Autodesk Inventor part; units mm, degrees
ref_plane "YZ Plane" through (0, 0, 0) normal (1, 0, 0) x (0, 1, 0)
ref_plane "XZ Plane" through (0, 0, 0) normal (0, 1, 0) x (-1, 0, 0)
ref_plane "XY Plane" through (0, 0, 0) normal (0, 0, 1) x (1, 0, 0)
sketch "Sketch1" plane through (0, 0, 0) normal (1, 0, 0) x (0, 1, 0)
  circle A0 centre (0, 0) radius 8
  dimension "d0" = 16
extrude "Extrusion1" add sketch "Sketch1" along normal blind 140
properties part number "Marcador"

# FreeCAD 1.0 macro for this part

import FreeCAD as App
import Part
import Sketcher

V = App.Vector

doc = App.newDocument("Part")
body = doc.addObject("PartDesign::Body", "Body")

# Sketch on YZ plane
sketch1 = body.newObject("Sketcher::SketchObject", "Sketch")
sketch1.AttachmentSupport = (doc.getObject("YZ_Plane"), [""])
sketch1.MapMode = "FlatFace"
sketch1.addGeometry(Part.Circle(V(0, 0, 0), V(0, 0, 1), 8), False)
sketch1.addConstraint([
    Sketcher.Constraint("Coincident", 0, 3, -1, 1),
    Sketcher.Constraint("Diameter", 0, 16.0),
])
pad1 = body.newObject("PartDesign::Pad", "Pad")
pad1.Profile = sketch1
pad1.Length = 140

doc.recompute()
